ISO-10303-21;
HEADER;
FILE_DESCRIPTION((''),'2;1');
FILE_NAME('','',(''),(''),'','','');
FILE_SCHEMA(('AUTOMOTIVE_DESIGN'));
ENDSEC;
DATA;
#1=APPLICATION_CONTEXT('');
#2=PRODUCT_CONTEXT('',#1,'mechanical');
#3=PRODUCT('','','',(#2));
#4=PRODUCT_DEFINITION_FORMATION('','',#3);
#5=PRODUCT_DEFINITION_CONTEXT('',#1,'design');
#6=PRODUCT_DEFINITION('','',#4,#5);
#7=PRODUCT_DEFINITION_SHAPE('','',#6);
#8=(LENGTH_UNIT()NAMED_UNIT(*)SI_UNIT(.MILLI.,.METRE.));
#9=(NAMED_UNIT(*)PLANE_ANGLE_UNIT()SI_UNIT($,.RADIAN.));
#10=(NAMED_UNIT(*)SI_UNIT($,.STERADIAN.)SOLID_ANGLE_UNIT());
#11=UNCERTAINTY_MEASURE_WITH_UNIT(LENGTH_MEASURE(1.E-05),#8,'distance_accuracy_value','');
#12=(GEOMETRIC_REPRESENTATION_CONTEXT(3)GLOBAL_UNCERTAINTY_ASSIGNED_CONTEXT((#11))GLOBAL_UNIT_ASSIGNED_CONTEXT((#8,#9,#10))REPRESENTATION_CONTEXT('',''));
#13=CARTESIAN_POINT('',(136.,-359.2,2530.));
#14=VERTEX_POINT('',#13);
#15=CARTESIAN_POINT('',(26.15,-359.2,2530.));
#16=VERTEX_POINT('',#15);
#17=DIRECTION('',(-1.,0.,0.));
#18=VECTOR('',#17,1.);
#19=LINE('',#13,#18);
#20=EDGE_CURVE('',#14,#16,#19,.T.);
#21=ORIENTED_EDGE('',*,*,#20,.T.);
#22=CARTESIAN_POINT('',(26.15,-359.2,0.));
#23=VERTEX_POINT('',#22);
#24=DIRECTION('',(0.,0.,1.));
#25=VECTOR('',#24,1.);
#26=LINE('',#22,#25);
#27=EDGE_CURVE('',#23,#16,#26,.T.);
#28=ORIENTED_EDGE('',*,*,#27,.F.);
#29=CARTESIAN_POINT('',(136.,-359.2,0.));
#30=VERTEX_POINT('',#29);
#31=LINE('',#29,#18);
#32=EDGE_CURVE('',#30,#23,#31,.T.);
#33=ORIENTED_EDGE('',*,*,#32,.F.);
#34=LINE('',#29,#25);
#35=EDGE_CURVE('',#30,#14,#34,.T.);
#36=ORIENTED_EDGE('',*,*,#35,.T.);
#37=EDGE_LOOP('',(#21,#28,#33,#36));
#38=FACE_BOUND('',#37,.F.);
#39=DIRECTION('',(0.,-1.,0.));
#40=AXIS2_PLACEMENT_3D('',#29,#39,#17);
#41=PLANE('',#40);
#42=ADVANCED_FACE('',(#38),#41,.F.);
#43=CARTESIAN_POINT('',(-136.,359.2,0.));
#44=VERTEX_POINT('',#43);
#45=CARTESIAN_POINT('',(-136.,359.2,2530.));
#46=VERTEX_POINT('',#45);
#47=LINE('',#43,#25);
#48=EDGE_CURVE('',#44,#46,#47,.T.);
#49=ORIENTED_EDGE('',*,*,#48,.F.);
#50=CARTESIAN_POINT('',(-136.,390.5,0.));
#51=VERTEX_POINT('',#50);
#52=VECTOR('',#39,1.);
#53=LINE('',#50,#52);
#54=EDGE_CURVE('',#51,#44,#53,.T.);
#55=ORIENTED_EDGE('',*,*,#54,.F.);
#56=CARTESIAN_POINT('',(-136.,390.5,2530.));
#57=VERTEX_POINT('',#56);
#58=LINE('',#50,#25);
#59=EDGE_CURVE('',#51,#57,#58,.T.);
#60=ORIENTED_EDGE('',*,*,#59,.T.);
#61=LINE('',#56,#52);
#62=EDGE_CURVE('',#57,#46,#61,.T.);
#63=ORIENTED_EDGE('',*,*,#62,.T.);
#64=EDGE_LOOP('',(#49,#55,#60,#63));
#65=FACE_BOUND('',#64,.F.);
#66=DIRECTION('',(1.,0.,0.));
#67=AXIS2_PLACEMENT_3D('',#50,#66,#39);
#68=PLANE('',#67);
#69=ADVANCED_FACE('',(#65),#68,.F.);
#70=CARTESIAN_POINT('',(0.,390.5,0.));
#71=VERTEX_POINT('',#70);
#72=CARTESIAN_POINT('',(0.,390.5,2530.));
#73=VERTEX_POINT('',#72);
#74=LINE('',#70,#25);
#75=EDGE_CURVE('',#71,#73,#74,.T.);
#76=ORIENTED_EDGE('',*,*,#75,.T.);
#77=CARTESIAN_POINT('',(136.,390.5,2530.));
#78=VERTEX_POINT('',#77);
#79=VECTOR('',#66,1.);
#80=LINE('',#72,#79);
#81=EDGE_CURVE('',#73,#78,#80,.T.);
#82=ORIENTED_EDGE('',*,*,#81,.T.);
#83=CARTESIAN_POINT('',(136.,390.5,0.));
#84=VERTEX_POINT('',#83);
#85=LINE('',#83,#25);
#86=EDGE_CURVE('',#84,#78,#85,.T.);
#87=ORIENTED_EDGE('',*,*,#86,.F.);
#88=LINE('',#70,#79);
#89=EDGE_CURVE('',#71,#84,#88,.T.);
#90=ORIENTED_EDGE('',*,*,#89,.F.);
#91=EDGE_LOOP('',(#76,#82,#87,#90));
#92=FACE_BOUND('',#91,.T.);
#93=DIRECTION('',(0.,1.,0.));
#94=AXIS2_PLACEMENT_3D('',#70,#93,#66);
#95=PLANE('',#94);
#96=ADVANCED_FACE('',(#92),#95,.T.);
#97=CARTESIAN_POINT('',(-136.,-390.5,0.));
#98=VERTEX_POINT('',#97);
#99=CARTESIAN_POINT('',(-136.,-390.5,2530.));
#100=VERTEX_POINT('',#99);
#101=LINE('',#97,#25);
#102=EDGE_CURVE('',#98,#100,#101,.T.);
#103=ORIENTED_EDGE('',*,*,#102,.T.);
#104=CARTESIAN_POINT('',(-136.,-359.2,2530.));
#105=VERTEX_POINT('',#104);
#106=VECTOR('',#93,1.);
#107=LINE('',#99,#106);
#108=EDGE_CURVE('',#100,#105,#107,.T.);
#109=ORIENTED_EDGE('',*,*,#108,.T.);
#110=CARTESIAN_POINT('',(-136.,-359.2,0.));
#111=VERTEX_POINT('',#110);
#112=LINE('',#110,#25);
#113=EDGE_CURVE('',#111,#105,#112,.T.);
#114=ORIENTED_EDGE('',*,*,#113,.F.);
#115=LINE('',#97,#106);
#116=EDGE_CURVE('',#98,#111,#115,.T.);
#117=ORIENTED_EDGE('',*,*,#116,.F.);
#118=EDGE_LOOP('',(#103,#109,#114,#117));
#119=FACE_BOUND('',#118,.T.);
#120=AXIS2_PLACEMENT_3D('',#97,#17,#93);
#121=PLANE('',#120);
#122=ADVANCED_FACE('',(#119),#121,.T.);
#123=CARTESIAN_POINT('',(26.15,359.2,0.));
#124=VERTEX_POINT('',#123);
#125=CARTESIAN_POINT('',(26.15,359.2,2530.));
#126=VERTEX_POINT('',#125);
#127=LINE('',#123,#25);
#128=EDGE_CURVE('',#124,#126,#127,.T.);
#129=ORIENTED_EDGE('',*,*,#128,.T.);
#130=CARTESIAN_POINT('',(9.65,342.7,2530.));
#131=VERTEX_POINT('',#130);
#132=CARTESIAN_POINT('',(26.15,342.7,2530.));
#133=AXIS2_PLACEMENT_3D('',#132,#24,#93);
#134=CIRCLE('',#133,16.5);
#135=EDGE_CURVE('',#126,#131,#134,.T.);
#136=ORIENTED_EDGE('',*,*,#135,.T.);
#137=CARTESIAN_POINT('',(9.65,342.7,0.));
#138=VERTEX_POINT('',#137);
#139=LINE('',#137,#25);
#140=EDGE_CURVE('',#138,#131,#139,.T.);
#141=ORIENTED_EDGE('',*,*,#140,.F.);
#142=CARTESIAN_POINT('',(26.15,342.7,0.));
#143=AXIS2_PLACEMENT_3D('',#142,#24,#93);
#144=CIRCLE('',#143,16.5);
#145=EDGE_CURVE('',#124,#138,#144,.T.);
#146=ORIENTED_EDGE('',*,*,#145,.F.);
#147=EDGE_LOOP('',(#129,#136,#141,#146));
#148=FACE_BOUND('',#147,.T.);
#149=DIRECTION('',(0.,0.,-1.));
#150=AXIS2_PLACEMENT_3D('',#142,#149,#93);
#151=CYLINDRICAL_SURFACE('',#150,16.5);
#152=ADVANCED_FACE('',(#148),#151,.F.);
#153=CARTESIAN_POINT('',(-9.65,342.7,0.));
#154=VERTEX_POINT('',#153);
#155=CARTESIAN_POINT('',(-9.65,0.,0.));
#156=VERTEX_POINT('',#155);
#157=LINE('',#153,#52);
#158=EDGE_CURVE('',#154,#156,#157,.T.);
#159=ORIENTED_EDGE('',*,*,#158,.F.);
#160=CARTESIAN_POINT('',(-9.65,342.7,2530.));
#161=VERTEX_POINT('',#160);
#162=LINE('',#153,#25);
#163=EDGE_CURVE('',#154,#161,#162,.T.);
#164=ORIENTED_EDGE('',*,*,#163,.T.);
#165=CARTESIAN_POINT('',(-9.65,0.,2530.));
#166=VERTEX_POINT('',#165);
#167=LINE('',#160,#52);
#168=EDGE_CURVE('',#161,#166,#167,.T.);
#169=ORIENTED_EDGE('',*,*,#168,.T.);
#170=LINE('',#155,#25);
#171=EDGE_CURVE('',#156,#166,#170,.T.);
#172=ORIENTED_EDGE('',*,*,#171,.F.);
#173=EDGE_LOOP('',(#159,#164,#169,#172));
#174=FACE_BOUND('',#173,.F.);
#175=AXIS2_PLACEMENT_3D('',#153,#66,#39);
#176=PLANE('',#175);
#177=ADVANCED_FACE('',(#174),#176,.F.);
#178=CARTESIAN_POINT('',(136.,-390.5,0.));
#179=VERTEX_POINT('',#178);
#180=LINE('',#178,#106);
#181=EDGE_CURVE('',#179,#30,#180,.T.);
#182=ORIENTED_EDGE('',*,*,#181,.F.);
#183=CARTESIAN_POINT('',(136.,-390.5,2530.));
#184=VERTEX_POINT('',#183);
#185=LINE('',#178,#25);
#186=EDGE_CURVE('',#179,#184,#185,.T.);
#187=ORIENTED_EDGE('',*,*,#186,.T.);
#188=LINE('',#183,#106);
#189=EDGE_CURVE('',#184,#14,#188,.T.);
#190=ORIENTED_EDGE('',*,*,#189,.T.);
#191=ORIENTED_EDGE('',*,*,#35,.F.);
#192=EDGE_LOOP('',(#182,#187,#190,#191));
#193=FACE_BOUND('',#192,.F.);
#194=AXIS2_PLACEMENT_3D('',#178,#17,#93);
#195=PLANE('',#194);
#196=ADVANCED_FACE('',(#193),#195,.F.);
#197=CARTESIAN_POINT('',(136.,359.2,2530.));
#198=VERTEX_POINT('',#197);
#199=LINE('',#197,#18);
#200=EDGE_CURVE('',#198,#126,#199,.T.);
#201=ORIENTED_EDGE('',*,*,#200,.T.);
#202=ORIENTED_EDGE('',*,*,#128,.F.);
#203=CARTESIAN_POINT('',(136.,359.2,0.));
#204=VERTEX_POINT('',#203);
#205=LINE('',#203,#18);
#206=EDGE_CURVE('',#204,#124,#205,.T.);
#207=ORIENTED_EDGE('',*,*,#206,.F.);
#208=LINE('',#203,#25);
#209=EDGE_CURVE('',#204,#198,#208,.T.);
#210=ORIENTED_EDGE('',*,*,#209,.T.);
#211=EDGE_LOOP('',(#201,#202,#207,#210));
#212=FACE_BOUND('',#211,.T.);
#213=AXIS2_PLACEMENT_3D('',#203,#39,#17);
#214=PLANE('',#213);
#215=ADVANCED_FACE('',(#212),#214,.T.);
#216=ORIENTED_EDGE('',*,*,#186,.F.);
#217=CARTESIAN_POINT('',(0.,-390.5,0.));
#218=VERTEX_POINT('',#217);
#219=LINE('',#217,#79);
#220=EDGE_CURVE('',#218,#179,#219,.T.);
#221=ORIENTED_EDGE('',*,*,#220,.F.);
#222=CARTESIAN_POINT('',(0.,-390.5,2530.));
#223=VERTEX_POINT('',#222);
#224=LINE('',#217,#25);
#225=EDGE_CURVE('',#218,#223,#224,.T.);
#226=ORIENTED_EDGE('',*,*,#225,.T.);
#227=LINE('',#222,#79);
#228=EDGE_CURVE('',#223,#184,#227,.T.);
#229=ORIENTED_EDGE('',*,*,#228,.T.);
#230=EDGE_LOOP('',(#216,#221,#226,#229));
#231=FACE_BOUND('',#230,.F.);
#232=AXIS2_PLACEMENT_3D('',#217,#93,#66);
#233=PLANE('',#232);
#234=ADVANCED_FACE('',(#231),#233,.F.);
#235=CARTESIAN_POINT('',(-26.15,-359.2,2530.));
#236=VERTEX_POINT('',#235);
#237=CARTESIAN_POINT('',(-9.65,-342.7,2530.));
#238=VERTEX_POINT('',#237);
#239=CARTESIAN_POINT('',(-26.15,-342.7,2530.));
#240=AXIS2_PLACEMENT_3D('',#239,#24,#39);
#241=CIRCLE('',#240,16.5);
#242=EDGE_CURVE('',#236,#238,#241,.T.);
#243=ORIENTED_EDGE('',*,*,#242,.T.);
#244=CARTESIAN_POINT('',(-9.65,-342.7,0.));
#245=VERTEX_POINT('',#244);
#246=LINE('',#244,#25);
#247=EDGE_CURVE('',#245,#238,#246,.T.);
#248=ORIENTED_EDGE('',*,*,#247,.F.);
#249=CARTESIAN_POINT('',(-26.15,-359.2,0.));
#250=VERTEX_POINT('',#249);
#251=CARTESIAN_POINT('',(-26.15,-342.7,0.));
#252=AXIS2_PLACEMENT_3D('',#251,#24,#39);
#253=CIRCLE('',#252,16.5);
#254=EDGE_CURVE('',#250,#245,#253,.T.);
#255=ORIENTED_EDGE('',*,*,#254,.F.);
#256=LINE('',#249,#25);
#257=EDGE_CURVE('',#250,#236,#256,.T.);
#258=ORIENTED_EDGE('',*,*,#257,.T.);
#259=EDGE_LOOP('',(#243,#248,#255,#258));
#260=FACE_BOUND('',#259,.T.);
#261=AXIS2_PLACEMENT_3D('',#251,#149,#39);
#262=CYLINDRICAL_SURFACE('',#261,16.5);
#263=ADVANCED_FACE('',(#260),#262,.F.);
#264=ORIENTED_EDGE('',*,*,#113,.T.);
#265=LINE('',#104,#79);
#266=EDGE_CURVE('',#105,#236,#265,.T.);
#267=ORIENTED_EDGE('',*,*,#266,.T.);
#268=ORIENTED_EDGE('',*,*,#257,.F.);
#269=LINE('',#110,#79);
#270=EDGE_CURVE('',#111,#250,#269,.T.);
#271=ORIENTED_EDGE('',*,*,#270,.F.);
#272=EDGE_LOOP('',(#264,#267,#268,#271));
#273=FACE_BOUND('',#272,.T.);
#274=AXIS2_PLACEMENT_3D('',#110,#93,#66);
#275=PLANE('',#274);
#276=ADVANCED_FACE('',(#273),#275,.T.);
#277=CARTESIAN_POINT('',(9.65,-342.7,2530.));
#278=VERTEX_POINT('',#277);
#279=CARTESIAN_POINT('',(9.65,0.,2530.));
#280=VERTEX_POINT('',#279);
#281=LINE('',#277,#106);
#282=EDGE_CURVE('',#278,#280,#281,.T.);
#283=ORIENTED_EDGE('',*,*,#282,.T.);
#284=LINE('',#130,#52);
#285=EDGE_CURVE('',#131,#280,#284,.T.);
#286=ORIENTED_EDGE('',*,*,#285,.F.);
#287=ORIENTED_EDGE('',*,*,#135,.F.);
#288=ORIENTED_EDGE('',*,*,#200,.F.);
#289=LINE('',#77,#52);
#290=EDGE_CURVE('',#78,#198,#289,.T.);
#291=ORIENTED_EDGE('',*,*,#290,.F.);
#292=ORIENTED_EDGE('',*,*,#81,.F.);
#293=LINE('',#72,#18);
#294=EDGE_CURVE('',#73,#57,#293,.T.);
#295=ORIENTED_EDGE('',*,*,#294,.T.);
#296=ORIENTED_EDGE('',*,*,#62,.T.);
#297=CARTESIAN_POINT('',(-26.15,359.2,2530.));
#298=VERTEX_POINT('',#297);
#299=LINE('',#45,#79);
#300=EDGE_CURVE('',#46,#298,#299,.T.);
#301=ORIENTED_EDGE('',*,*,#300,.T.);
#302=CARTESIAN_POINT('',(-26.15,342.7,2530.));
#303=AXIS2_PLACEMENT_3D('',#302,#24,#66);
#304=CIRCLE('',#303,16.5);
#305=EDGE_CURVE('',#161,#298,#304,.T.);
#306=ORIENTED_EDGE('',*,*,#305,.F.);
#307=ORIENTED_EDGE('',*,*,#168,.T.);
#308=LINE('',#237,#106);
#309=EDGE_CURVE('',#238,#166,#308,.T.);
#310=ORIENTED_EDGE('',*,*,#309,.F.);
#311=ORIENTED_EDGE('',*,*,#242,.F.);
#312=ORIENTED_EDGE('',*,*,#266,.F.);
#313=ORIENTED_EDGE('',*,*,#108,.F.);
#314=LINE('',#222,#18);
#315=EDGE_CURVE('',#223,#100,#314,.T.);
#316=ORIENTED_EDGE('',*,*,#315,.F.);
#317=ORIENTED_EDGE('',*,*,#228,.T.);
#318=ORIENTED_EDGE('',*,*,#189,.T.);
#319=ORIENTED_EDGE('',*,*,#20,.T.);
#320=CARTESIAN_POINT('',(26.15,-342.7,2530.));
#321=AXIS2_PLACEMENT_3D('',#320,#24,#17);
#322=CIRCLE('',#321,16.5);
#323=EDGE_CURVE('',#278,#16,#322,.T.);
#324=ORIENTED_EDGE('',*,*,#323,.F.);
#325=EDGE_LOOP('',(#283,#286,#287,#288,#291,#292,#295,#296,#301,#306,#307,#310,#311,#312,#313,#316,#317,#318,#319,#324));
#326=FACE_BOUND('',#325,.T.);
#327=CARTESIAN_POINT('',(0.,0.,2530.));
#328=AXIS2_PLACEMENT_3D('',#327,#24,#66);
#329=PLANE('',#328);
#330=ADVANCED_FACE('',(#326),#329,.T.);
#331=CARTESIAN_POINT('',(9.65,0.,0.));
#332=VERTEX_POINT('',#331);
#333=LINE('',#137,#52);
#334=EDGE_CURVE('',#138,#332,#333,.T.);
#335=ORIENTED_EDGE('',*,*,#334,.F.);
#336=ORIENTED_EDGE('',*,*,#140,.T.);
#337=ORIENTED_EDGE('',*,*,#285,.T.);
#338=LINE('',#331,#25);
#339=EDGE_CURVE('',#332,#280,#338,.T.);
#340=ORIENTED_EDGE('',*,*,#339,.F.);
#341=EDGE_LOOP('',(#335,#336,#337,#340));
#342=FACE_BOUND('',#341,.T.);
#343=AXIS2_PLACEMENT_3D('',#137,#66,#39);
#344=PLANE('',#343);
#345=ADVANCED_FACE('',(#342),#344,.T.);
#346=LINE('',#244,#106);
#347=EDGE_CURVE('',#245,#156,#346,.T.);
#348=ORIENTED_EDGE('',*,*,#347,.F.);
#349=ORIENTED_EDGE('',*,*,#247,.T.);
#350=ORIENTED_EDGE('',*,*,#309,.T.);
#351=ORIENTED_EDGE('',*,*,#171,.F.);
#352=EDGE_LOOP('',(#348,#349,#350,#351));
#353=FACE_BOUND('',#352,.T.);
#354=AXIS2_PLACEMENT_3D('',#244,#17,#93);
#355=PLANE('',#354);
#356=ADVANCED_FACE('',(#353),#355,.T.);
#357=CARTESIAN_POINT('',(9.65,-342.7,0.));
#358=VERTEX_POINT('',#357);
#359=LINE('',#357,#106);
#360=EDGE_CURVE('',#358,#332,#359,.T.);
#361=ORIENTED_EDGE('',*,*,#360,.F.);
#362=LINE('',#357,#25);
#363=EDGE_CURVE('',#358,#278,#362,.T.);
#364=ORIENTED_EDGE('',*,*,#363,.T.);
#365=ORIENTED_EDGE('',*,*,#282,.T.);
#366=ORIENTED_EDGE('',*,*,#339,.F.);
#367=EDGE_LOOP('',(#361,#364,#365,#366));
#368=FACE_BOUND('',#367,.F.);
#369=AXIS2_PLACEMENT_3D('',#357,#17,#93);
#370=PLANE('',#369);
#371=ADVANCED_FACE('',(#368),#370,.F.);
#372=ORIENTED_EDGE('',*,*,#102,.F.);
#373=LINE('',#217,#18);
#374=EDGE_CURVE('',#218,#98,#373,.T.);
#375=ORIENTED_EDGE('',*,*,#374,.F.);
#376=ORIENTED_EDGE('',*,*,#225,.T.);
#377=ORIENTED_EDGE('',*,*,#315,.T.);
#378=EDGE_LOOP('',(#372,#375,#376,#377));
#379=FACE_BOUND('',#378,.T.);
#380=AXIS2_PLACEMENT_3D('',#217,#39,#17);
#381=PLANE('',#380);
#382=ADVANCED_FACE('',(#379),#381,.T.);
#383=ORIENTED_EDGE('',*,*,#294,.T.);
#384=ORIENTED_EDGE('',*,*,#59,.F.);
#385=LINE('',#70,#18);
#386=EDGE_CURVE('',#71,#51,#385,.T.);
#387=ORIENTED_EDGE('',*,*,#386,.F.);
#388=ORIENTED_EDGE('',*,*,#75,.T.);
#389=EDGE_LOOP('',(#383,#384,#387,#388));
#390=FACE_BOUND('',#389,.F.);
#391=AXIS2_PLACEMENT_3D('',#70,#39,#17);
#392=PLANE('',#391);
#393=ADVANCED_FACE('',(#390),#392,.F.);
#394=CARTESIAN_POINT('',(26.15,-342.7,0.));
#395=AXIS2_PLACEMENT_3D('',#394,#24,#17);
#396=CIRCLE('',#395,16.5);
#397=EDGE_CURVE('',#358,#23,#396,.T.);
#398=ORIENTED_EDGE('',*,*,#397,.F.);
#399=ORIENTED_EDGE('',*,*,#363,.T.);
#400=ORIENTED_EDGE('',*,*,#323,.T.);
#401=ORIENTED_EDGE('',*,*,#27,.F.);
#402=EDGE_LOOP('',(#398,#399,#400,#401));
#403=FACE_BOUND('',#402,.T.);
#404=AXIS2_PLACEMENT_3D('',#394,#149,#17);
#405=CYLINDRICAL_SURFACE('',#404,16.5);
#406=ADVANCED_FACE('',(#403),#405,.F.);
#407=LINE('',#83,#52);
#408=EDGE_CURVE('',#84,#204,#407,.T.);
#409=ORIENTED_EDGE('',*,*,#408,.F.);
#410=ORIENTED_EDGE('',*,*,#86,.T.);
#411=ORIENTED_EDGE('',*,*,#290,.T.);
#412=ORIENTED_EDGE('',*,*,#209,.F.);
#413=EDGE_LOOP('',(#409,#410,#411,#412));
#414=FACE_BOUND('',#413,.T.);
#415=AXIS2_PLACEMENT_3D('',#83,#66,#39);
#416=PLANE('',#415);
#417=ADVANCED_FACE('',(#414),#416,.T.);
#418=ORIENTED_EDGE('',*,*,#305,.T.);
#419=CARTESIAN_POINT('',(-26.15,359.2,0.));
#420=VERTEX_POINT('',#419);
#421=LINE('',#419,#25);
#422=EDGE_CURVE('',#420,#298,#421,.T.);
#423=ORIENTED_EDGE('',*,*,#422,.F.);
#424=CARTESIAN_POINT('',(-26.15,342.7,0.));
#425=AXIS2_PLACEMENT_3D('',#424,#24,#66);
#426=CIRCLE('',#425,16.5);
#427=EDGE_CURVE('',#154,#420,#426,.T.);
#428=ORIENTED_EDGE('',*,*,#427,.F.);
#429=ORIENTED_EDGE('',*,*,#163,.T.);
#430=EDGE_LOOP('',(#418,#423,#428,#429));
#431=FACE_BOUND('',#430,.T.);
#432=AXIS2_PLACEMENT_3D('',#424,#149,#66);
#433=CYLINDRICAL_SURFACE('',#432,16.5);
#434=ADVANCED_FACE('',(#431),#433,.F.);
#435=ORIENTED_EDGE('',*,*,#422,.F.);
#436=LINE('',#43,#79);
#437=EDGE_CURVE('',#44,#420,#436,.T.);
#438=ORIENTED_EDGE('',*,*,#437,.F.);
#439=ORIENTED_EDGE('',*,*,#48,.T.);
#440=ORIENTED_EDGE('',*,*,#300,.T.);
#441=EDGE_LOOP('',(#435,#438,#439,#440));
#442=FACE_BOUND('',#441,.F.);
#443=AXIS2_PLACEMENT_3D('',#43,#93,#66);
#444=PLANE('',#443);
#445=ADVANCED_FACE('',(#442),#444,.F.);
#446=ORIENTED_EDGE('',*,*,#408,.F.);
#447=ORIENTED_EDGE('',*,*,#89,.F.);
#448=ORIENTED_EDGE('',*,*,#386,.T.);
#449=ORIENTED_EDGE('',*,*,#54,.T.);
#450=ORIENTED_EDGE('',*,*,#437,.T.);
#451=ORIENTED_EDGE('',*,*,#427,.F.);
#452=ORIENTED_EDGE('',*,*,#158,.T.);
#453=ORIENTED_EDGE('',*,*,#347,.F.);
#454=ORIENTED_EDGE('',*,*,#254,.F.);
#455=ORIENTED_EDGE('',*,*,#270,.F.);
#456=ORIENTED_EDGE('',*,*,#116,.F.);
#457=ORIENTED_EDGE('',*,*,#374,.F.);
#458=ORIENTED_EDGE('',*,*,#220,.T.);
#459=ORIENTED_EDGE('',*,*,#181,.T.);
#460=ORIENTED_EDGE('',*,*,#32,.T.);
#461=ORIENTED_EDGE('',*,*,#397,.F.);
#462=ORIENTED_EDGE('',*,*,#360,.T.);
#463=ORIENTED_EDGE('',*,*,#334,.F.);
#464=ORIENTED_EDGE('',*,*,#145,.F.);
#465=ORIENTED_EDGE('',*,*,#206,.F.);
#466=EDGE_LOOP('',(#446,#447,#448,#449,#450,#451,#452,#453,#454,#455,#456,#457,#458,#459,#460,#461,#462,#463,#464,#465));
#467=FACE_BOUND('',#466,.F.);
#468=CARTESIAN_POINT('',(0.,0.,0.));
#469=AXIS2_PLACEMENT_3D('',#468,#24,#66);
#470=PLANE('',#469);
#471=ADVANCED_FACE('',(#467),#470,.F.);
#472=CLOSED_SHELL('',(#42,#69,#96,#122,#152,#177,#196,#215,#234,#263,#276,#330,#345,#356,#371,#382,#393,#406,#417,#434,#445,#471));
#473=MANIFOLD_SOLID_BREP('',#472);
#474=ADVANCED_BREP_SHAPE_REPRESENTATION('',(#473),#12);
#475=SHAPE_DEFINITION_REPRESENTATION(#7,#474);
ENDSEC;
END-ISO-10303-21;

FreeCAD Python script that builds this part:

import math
import FreeCAD as App
import Part
import Sketcher
from FreeCAD import Vector

doc = App.newDocument("Part")
body = doc.addObject("PartDesign::Body", "Body")

sketch1 = doc.addObject("Sketcher::SketchObject", "Sketch")
body.addObject(sketch1)
sketch1.AttachmentSupport = (doc.XY_Plane, [""])
sketch1.MapMode = "FlatFace"
sketch1.addGeometry([
    Part.LineSegment(Vector(-136, -359, 0), Vector(-136, -390, 0)),
    Part.LineSegment(Vector(-136, -390, 0), Vector(136, -390, 0)),
    Part.LineSegment(Vector(136, -390, 0), Vector(136, -359, 0)),
    Part.LineSegment(Vector(136, -359, 0), Vector(26, -359, 0)),
    Part.ArcOfCircle(Part.Circle(Vector(26, -343, 0), Vector(0, 0, 1), 16), math.radians(180), math.radians(270)),
    Part.LineSegment(Vector(10, -343, 0), Vector(10, 343, 0)),
    Part.ArcOfCircle(Part.Circle(Vector(26, 343, 0), Vector(0, 0, 1), 16), math.radians(90), math.radians(180)),
    Part.LineSegment(Vector(26, 359, 0), Vector(136, 359, 0)),
    Part.LineSegment(Vector(136, 359, 0), Vector(136, 390, 0)),
    Part.LineSegment(Vector(136, 390, 0), Vector(-136, 390, 0)),
    Part.LineSegment(Vector(-136, 390, 0), Vector(-136, 359, 0)),
    Part.LineSegment(Vector(-136, 359, 0), Vector(-26, 359, 0)),
    Part.ArcOfCircle(Part.Circle(Vector(-26, 343, 0), Vector(0, 0, 1), 16), math.radians(0), math.radians(90)),
    Part.LineSegment(Vector(-10, 343, 0), Vector(-10, -343, 0)),
    Part.ArcOfCircle(Part.Circle(Vector(-26, -343, 0), Vector(0, 0, 1), 16), math.radians(-90), math.radians(0)),
    Part.LineSegment(Vector(-26, -359, 0), Vector(-136, -359, 0)),
], False)
sketch1.addConstraint([
    Sketcher.Constraint("Coincident", 0, 2, 1, 1),
    Sketcher.Constraint("Coincident", 1, 2, 2, 1),
    Sketcher.Constraint("Coincident", 2, 2, 3, 1),
    Sketcher.Constraint("Tangent", 3, 2, 4, 2),
    Sketcher.Constraint("Tangent", 4, 1, 5, 1),
    Sketcher.Constraint("Tangent", 5, 2, 6, 2),
    Sketcher.Constraint("Tangent", 6, 1, 7, 1),
    Sketcher.Constraint("Coincident", 7, 2, 8, 1),
    Sketcher.Constraint("Coincident", 8, 2, 9, 1),
    Sketcher.Constraint("Coincident", 9, 2, 10, 1),
    Sketcher.Constraint("Coincident", 10, 2, 11, 1),
    Sketcher.Constraint("Tangent", 11, 2, 12, 2),
    Sketcher.Constraint("Tangent", 12, 1, 13, 1),
    Sketcher.Constraint("Tangent", 13, 2, 14, 2),
    Sketcher.Constraint("Tangent", 14, 1, 15, 1),
    Sketcher.Constraint("Coincident", 15, 2, 0, 1),
    Sketcher.Constraint("Vertical", 0),
    Sketcher.Constraint("Horizontal", 1),
    Sketcher.Constraint("Vertical", 2),
    Sketcher.Constraint("Horizontal", 3),
    Sketcher.Constraint("Vertical", 5),
    Sketcher.Constraint("Horizontal", 7),
    Sketcher.Constraint("Vertical", 8),
    Sketcher.Constraint("Horizontal", 9),
    Sketcher.Constraint("Vertical", 10),
    Sketcher.Constraint("Horizontal", 11),
    Sketcher.Constraint("Vertical", 13),
    Sketcher.Constraint("Horizontal", 15),
    Sketcher.Constraint("Equal", 4, 6),
    Sketcher.Constraint("Equal", 6, 12),
    Sketcher.Constraint("Equal", 12, 14),
    Sketcher.Constraint("Symmetric", 4, 3, 12, 3, -1, 1),
    Sketcher.Constraint("Symmetric", 0, 2, 8, 2, -1, 1),
    Sketcher.Constraint("Symmetric", 7, 2, 10, 2, -2),
    Sketcher.Constraint("Symmetric", 2, 2, 15, 2, -2),
    Sketcher.Constraint("Radius", 4, 16.5),
    Sketcher.Constraint("DistanceY", 0, 2, 0, 1, 31.3),
    Sketcher.Constraint("DistanceX", 0, 2, -1, 1, 136.0),
    Sketcher.Constraint("DistanceY", 0, 2, -1, 1, 390.5),
    Sketcher.Constraint("DistanceX", -1, 1, 4, 1, 9.65),
])
pad1 = doc.addObject("PartDesign::Pad", "Pad")
body.addObject(pad1)
pad1.Profile = sketch1
pad1.Length = 2530

doc.recompute()
